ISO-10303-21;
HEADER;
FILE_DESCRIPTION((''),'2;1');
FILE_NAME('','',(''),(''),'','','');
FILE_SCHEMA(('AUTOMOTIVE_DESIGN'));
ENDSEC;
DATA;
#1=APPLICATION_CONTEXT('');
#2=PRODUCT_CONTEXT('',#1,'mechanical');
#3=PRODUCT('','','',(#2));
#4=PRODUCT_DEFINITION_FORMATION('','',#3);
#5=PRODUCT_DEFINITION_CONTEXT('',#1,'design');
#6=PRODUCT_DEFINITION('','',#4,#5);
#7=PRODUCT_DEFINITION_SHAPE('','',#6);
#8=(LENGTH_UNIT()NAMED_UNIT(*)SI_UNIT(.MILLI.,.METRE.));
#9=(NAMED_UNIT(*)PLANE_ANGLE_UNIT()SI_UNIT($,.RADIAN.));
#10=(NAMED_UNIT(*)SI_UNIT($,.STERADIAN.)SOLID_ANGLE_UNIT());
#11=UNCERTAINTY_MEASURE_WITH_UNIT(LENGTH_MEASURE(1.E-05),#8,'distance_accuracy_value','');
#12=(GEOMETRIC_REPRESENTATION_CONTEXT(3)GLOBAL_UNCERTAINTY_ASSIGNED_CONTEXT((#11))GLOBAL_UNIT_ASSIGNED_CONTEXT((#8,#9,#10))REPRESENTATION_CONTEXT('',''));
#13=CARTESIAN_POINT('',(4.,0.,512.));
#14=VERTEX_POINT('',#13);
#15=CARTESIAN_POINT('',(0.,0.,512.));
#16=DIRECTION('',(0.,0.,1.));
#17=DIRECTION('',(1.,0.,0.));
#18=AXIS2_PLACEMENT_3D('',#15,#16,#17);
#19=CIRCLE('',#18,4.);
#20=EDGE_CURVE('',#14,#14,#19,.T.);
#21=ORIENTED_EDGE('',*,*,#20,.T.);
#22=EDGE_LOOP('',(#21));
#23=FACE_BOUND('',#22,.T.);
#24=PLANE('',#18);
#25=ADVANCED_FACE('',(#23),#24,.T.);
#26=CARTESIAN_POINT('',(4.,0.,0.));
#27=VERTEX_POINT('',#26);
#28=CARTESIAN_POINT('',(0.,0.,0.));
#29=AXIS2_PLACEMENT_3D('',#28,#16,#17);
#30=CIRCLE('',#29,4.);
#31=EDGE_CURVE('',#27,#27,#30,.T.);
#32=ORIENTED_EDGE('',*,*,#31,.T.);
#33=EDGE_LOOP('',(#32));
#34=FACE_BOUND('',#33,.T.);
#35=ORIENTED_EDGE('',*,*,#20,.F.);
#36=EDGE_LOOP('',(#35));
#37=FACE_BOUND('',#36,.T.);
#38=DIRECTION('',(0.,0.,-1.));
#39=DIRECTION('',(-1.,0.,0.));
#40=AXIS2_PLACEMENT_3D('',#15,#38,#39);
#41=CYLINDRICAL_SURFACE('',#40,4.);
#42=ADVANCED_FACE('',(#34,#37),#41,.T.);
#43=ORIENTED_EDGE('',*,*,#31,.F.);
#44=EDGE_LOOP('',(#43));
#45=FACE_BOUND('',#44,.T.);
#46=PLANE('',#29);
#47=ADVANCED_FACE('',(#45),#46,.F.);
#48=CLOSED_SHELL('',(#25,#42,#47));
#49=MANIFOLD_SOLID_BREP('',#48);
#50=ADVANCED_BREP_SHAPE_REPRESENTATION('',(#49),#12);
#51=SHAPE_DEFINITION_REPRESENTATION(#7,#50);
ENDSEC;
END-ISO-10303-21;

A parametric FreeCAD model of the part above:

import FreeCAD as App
import Part
import Sketcher
from FreeCAD import Vector
Q = App.Units.Quantity

doc = App.newDocument("Part")
body = doc.addObject("PartDesign::Body", "Body")

# Sketch on XY plane
sketch1 = doc.addObject("Sketcher::SketchObject", "Sketch")
body.addObject(sketch1)
sketch1.AttachmentSupport = (doc.XY_Plane, [""])
sketch1.MapMode = "FlatFace"
sketch1.addGeometry(Part.Circle(Vector(0, 0, 0), Vector(0, 0, 1), 4), False)
sketch1.addConstraint([
    Sketcher.Constraint("Coincident", 0, 3, -1, 1),
    Sketcher.Constraint("Diameter", 0, Q("8 mm")),
])
pad1 = doc.addObject("PartDesign::Pad", "Pad")
body.addObject(pad1)
pad1.Profile = sketch1
pad1.Length = 512

doc.recompute()
